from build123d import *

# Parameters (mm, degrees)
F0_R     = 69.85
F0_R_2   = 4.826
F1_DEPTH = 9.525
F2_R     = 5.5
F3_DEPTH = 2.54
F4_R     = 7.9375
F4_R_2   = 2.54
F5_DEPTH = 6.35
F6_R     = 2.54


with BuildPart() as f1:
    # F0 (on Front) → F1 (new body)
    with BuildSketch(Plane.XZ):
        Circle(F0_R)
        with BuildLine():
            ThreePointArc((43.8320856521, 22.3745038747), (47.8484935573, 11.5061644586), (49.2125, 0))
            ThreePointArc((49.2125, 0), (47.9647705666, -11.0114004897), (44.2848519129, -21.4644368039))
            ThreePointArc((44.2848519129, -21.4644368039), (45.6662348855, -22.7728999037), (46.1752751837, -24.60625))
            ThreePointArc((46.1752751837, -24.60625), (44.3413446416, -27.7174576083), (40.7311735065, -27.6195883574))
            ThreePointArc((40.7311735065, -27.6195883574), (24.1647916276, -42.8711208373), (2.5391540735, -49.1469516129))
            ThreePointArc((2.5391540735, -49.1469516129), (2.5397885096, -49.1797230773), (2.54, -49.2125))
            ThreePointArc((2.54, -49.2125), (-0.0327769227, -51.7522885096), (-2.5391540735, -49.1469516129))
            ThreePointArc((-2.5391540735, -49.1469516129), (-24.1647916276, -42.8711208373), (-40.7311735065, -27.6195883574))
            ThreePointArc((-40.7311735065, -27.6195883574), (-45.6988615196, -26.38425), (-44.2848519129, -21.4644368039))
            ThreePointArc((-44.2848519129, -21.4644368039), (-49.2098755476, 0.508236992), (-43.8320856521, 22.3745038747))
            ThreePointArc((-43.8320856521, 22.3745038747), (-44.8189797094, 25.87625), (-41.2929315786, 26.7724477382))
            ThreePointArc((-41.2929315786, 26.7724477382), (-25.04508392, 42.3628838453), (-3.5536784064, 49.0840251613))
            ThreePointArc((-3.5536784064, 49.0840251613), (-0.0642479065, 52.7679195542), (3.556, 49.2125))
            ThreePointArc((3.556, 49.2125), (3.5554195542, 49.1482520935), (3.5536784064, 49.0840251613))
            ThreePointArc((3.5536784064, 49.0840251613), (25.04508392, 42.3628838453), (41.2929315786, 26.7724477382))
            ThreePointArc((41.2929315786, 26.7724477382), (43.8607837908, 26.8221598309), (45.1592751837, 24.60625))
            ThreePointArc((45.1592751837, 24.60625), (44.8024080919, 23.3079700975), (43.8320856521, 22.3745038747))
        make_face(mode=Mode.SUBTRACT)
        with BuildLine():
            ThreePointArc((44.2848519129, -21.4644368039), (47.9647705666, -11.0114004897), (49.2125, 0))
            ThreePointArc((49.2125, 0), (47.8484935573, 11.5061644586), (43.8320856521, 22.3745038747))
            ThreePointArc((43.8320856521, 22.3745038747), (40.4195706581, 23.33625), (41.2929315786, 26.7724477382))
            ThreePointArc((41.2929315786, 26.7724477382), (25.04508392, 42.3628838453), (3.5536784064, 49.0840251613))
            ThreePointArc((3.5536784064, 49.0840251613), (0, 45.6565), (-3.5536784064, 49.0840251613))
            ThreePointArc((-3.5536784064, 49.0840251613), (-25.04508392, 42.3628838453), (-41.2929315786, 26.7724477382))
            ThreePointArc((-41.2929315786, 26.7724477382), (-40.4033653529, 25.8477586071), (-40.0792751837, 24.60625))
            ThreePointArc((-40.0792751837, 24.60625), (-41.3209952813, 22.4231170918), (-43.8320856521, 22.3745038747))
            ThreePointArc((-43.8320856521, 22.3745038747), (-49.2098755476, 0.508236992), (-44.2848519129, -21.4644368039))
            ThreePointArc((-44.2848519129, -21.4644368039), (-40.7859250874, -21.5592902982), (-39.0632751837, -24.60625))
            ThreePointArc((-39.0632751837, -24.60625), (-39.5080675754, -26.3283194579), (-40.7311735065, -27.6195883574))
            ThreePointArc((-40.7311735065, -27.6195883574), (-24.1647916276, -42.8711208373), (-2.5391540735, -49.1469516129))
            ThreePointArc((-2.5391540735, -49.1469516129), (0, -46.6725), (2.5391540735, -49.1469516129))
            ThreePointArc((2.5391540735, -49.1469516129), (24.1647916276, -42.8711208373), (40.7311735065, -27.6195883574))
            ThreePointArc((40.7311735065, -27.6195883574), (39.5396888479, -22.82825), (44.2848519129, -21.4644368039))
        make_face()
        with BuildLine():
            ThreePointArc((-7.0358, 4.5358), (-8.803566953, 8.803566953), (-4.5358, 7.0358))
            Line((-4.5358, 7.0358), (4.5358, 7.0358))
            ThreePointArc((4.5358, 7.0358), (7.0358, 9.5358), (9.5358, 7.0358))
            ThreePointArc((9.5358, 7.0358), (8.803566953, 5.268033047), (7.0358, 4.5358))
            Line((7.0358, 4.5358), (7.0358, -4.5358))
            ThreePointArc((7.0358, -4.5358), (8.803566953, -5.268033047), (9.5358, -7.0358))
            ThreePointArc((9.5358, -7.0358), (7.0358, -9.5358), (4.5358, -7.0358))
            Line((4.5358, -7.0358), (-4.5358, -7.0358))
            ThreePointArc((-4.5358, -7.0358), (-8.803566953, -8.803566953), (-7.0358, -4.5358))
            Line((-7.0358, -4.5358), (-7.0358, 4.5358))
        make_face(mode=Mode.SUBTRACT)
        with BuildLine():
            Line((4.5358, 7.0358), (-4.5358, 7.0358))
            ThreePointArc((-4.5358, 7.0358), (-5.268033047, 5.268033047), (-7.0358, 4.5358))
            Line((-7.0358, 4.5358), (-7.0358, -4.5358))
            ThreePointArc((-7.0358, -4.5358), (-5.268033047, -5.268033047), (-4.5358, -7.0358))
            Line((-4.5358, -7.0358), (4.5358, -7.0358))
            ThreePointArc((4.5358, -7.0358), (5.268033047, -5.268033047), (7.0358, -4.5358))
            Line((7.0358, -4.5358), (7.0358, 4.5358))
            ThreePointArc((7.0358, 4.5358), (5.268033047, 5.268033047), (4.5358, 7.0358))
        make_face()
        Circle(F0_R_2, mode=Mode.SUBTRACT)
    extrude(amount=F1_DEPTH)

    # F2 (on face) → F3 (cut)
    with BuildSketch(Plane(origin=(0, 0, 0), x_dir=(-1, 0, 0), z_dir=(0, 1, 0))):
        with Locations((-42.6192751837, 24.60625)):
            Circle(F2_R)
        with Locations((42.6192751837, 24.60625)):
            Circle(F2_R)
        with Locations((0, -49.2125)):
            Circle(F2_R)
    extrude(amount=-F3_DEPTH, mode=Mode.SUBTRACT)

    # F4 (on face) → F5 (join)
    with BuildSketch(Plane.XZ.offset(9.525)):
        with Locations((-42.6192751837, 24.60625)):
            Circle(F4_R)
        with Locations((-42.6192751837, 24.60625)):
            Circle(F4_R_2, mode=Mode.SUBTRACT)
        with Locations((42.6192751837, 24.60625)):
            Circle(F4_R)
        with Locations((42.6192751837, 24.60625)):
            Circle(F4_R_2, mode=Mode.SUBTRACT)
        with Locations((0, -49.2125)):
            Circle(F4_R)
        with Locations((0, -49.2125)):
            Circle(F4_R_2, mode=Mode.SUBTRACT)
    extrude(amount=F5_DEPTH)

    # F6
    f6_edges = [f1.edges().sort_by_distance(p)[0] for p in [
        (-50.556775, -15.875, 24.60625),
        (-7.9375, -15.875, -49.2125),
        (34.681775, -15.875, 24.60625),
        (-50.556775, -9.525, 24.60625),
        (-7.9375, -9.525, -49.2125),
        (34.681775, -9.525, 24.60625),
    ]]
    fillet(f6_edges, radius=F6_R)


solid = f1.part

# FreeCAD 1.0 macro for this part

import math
import FreeCAD as App
import Part
import Sketcher

V = App.Vector
Q = App.Units.Quantity


def edges_at(feature, points):
    """Names of the edges that pass closest to the given points."""
    edges = feature.Shape.Edges
    near = lambda p: min(range(len(edges)), key=lambda i: edges[i].distToShape(Part.Vertex(*p))[0])
    return sorted({f"Edge{near(p) + 1}" for p in points})

doc = App.newDocument("Part")
params = doc.addObject("Spreadsheet::Sheet", "Params")
for row, (alias, value) in enumerate([
    ("sketch1_diameter", "5.5 in"),
    ("sketch1_radius", "0.1 in"),
    ("sketch1_diameter2", "0.38 in"),
    ("sketch1_radius2", "0.14 in"),
    ("pad1_length", "0.375 in"),
    ("pocket1_length", "0.1 in"),
    ("sketch3_diameter", "0.2 in"),
    ("sketch3_diameter2", "0.625 in"),
    ("pad2_length", "0.25 in"),
    ("fillet_radius", "0.1 in"),
], start=1):
    params.set(f"A{row}", alias)
    params.set(f"B{row}", "=" + value)
    params.setAlias(f"B{row}", alias)

body = doc.addObject("PartDesign::Body", "Body")

sketch1 = body.newObject("Sketcher::SketchObject", "Sketch")
sketch1.AttachmentSupport = (doc.getObject("XZ_Plane"), [""])
sketch1.MapMode = "FlatFace"
sketch1.addGeometry([
    Part.Circle(V(0, 0, 0), V(0, 0, 1), 69.85),
    Part.ArcOfCircle(Part.Circle(V(-42.619275, -24.60625, 0), V(0, 0, 1), 3.556), math.radians(117.929508), math.radians(302.070492)),
    Part.ArcOfCircle(Part.Circle(V(-42.619275, -24.60625, 0), V(0, 0, 1), 3.556), math.radians(0), math.radians(117.929508)),
    Part.ArcOfCircle(Part.Circle(V(-42.619275, -24.60625, 0), V(0, 0, 1), 3.556), math.radians(-57.929508), math.radians(0)),
    Part.ArcOfCircle(Part.Circle(V(-7.0358, -7.0358, 0), V(0, 0, 1), 2.5), math.radians(90), math.radians(360)),
    Part.ArcOfCircle(Part.Circle(V(-7.0358, -7.0358, 0), V(0, 0, 1), 2.5), math.radians(0), math.radians(90)),
    Part.ArcOfCircle(Part.Circle(V(0, -49.2125, 0), V(0, 0, 1), 2.54), math.radians(178.521235), math.radians(360)),
    Part.ArcOfCircle(Part.Circle(V(0, -49.2125, 0), V(0, 0, 1), 2.54), math.radians(1.478765), math.radians(178.521235)),
    Part.ArcOfCircle(Part.Circle(V(0, -49.2125, 0), V(0, 0, 1), 2.54), math.radians(0), math.radians(1.478765)),
    Part.ArcOfCircle(Part.Circle(V(7.0358, -7.0358, 0), V(0, 0, 1), 2.5), math.radians(180), math.radians(360)),
    Part.ArcOfCircle(Part.Circle(V(7.0358, -7.0358, 0), V(0, 0, 1), 2.5), math.radians(90), math.radians(180)),
    Part.ArcOfCircle(Part.Circle(V(7.0358, -7.0358, 0), V(0, 0, 1), 2.5), math.radians(0), math.radians(90)),
    Part.Circle(V(0, 0, 0), V(0, 0, 1), 4.826),
    Part.ArcOfCircle(Part.Circle(V(42.619275, -24.60625, 0), V(0, 0, 1), 3.556), math.radians(-122.070492), math.radians(0)),
    Part.ArcOfCircle(Part.Circle(V(42.619275, -24.60625, 0), V(0, 0, 1), 3.556), math.radians(62.070492), math.radians(237.929508)),
    Part.ArcOfCircle(Part.Circle(V(42.619275, -24.60625, 0), V(0, 0, 1), 3.556), math.radians(0), math.radians(62.070492)),
    Part.ArcOfCircle(Part.Circle(V(-42.619275, 24.60625, 0), V(0, 0, 1), 2.54), math.radians(58.521235), math.radians(241.478765)),
    Part.ArcOfCircle(Part.Circle(V(-42.619275, 24.60625, 0), V(0, 0, 1), 2.54), math.radians(0), math.radians(58.521235)),
    Part.ArcOfCircle(Part.Circle(V(-42.619275, 24.60625, 0), V(0, 0, 1), 2.54), math.radians(-118.521235), math.radians(0)),
    Part.ArcOfCircle(Part.Circle(V(-7.0358, 7.0358, 0), V(0, 0, 1), 2.5), math.radians(0), math.radians(270)),
    Part.ArcOfCircle(Part.Circle(V(-7.0358, 7.0358, 0), V(0, 0, 1), 2.5), math.radians(-90), math.radians(0)),
    Part.ArcOfCircle(Part.Circle(V(7.0358, 7.0358, 0), V(0, 0, 1), 2.5), math.radians(-90), math.radians(0)),
    Part.ArcOfCircle(Part.Circle(V(7.0358, 7.0358, 0), V(0, 0, 1), 2.5), math.radians(180), math.radians(270)),
    Part.ArcOfCircle(Part.Circle(V(7.0358, 7.0358, 0), V(0, 0, 1), 2.5), math.radians(0), math.radians(180)),
    Part.ArcOfCircle(Part.Circle(V(42.619275, 24.60625, 0), V(0, 0, 1), 2.54), math.radians(-61.478765), math.radians(0)),
    Part.ArcOfCircle(Part.Circle(V(42.619275, 24.60625, 0), V(0, 0, 1), 2.54), math.radians(121.478765), math.radians(298.521235)),
    Part.ArcOfCircle(Part.Circle(V(42.619275, 24.60625, 0), V(0, 0, 1), 2.54), math.radians(0), math.radians(121.478765)),
    Part.ArcOfCircle(Part.Circle(V(0, 49.2125, 0), V(0, 0, 1), 3.556), math.radians(-2.070492), math.radians(0)),
    Part.ArcOfCircle(Part.Circle(V(0, 49.2125, 0), V(0, 0, 1), 3.556), math.radians(-177.929508), math.radians(-2.070492)),
    Part.ArcOfCircle(Part.Circle(V(0, 49.2125, 0), V(0, 0, 1), 3.556), math.radians(0), math.radians(182.070492)),
], False)
sketch1.addConstraint([
    Sketcher.Constraint("Tangent", 1, 1, 2, 2),
    Sketcher.Constraint("Tangent", 2, 1, 3, 2),
    Sketcher.Constraint("Tangent", 3, 1, 1, 2),
    Sketcher.Constraint("Tangent", 4, 1, 5, 2),
    Sketcher.Constraint("Coincident", 5, 1, 4, 2),
    Sketcher.Constraint("Tangent", 6, 1, 7, 2),
    Sketcher.Constraint("Tangent", 7, 1, 8, 2),
    Sketcher.Constraint("Tangent", 8, 1, 6, 2),
    Sketcher.Constraint("Tangent", 9, 1, 10, 2),
    Sketcher.Constraint("Tangent", 10, 1, 11, 2),
    Sketcher.Constraint("Tangent", 11, 1, 9, 2),
    Sketcher.Constraint("Tangent", 13, 1, 14, 2),
    Sketcher.Constraint("Tangent", 14, 1, 15, 2),
    Sketcher.Constraint("Tangent", 15, 1, 13, 2),
    Sketcher.Constraint("Tangent", 16, 1, 17, 2),
    Sketcher.Constraint("Tangent", 17, 1, 18, 2),
    Sketcher.Constraint("Tangent", 18, 1, 16, 2),
    Sketcher.Constraint("Tangent", 19, 1, 20, 2),
    Sketcher.Constraint("Coincident", 20, 1, 19, 2),
    Sketcher.Constraint("Tangent", 21, 1, 22, 2),
    Sketcher.Constraint("Tangent", 22, 1, 23, 2),
    Sketcher.Constraint("Tangent", 23, 1, 21, 2),
    Sketcher.Constraint("Tangent", 24, 1, 25, 2),
    Sketcher.Constraint("Tangent", 25, 1, 26, 2),
    Sketcher.Constraint("Tangent", 26, 1, 24, 2),
    Sketcher.Constraint("Tangent", 27, 1, 28, 2),
    Sketcher.Constraint("Tangent", 28, 1, 29, 2),
    Sketcher.Constraint("Tangent", 29, 1, 27, 2),
    Sketcher.Constraint("Coincident", 0, 3, -1, 1),
    Sketcher.Constraint("Coincident", 12, 3, -1, 1),
    Sketcher.Constraint("Equal", 5, 9),
    Sketcher.Constraint("Equal", 3, 13),
    Sketcher.Constraint("Equal", 8, 16),
    Sketcher.Constraint("Equal", 11, 19),
    Sketcher.Constraint("Equal", 20, 21),
    Sketcher.Constraint("Equal", 18, 24),
    Sketcher.Constraint("Equal", 15, 27),
    Sketcher.Constraint("Symmetric", 13, 3, 16, 3, -1, 1),
    Sketcher.Constraint("Symmetric", 9, 3, 19, 3, -1, 1),
    Sketcher.Constraint("Symmetric", 4, 3, 21, 3, -1, 1),
    Sketcher.Constraint("Symmetric", 1, 3, 24, 3, -1, 1),
    Sketcher.Constraint("Symmetric", 6, 3, 27, 3, -1, 1),
    Sketcher.Constraint("Symmetric", 4, 3, 9, 3, -2),
    Sketcher.Constraint("Symmetric", 1, 3, 13, 3, -2),
    Sketcher.Constraint("Symmetric", 6, 1, 7, 1, -2),
    Sketcher.Constraint("Horizontal", 15, 3, 2, 1),
    Sketcher.Constraint("Horizontal", 11, 3, 5, 1),
    Sketcher.Constraint("Horizontal", 7, 3, 8, 1),
    Sketcher.Constraint("Horizontal", 5, 1, 9, 1),
    Sketcher.Constraint("Horizontal", 9, 1, 11, 1),
    Sketcher.Constraint("Horizontal", 3, 1, 13, 1),
    Sketcher.Constraint("Horizontal", 1, 1, 14, 1),
    Sketcher.Constraint("Horizontal", 2, 1, 15, 1),
    Sketcher.Constraint("Horizontal", 26, 3, 17, 1),
    Sketcher.Constraint("Horizontal", 23, 3, 19, 1),
    Sketcher.Constraint("Horizontal", 19, 1, 22, 1),
    Sketcher.Constraint("Horizontal", 22, 1, 23, 1),
    Sketcher.Constraint("Horizontal", 18, 1, 24, 1),
    Sketcher.Constraint("Horizontal", 16, 1, 25, 1),
    Sketcher.Constraint("Horizontal", 17, 1, 26, 1),
    Sketcher.Constraint("Horizontal", 27, 1, 28, 1),
    Sketcher.Constraint("Horizontal", 28, 3, 29, 1),
    Sketcher.Constraint("Vertical", 20, 3, 4, 1),
    Sketcher.Constraint("Vertical", 23, 3, 10, 1),
    Sketcher.Constraint("Vertical", 4, 1, 20, 1),
    Sketcher.Constraint("Vertical", 10, 1, 21, 1),
    Sketcher.Constraint("Diameter", 0, Q("5.5 in")),
    Sketcher.Constraint("Radius", 6, Q("0.1 in")),
    Sketcher.Constraint("Diameter", 12, Q("0.38 in")),
    Sketcher.Constraint("Radius", 1, Q("0.14 in")),
    Sketcher.Constraint("Radius", 4, 2.5),
    Sketcher.Constraint("DistanceY", 1, 3, -1, 1, Q("0.96875 in")),
    Sketcher.Constraint("DistanceX", 4, 3, -1, 1, Q("0.277 in")),
    Sketcher.Constraint("DistanceY", 4, 3, -1, 1, Q("0.277 in")),
    Sketcher.Constraint("DistanceY", 6, 3, -1, 1, Q("1.9375 in")),
    Sketcher.Constraint("DistanceX", 3, 1, 2, 1, 1.667898),
    Sketcher.Constraint("DistanceX", 1, 1, -1, 1, 44.284852),
    Sketcher.Constraint("DistanceY", 6, 1, -1, 1, 49.146952),
    Sketcher.Constraint("DistanceX", 16, 1, -1, 1, 41.292932),
    Sketcher.Constraint("DistanceX", -1, 1, 27, 1, 3.553678),
    Sketcher.Constraint("DistanceX", 1, 1, 3, 1, 3.553678),
    Sketcher.Constraint("DistanceX", 18, 1, 16, 3, 1.21281),
])
sketch1.setExpression("Constraints[66]", "Params.sketch1_diameter")
sketch1.setExpression("Constraints[67]", "Params.sketch1_radius")
sketch1.setExpression("Constraints[68]", "Params.sketch1_diameter2")
sketch1.setExpression("Constraints[69]", "Params.sketch1_radius2")
pad1 = body.newObject("PartDesign::Pad", "Pad")
pad1.Profile = sketch1
pad1.setExpression("Length", "Params.pad1_length")

sketch2 = body.newObject("Sketcher::SketchObject", "Sketch001")
sketch2.AttachmentSupport = (doc.getObject("XZ_Plane"), [""])
sketch2.MapMode = "FlatFace"
sketch2.addGeometry([
    Part.Circle(V(42.619275, 24.60625, 0), V(0, 0, 1), 5.5),
    Part.Circle(V(-42.619275, 24.60625, 0), V(0, 0, 1), 5.5),
    Part.Circle(V(0, -49.2125, 0), V(0, 0, 1), 5.5),
], False)
sketch2.addConstraint([
    Sketcher.Constraint("Equal", 0, 1),
    Sketcher.Constraint("Equal", 1, 2),
    Sketcher.Constraint("Symmetric", 0, 3, 1, 3, -2),
    Sketcher.Constraint("PointOnObject", 2, 3, -2),
    Sketcher.Constraint("Diameter", 0, 11.0),
    Sketcher.Constraint("DistanceY", -1, 1, 0, 3, Q("0.96875 in")),
    Sketcher.Constraint("DistanceY", 2, 3, -1, 1, Q("1.9375 in")),
    Sketcher.Constraint("DistanceX", 1, 3, 0, 3, 85.23855),
])
pocket1 = body.newObject("PartDesign::Pocket", "Pocket")
pocket1.Profile = sketch2
pocket1.setExpression("Length", "Params.pocket1_length")
pocket1.Reversed = True

sketch3 = body.newObject("Sketcher::SketchObject", "Sketch002")
sketch3.AttachmentSupport = (doc.getObject("XZ_Plane"), [""])
sketch3.MapMode = "FlatFace"
sketch3.AttachmentOffset = App.Placement(V(0, 0, 0.375 * 25.4), App.Rotation())
sketch3.addGeometry([
    Part.Circle(V(-42.619275, 24.60625, 0), V(0, 0, 1), 7.9375),
    Part.Circle(V(-42.619275, 24.60625, 0), V(0, 0, 1), 2.54),
    Part.Circle(V(42.619275, 24.60625, 0), V(0, 0, 1), 7.9375),
    Part.Circle(V(42.619275, 24.60625, 0), V(0, 0, 1), 2.54),
    Part.Circle(V(0, -49.2125, 0), V(0, 0, 1), 7.9375),
    Part.Circle(V(0, -49.2125, 0), V(0, 0, 1), 2.54),
], False)
sketch3.addConstraint([
    Sketcher.Constraint("Coincident", 1, 3, 0, 3),
    Sketcher.Constraint("Coincident", 3, 3, 2, 3),
    Sketcher.Constraint("Coincident", 5, 3, 4, 3),
    Sketcher.Constraint("Equal", 0, 2),
    Sketcher.Constraint("Equal", 1, 3),
    Sketcher.Constraint("Equal", 2, 4),
    Sketcher.Constraint("Equal", 3, 5),
    Sketcher.Constraint("Symmetric", 0, 3, 2, 3, -2),
    Sketcher.Constraint("PointOnObject", 4, 3, -2),
    Sketcher.Constraint("Diameter", 1, Q("0.2 in")),
    Sketcher.Constraint("Diameter", 0, Q("0.625 in")),
    Sketcher.Constraint("DistanceY", -1, 1, 0, 3, Q("0.96875 in")),
    Sketcher.Constraint("DistanceY", 4, 3, -1, 1, Q("1.9375 in")),
    Sketcher.Constraint("DistanceX", 0, 3, 2, 3, 85.23855),
])
sketch3.setExpression("Constraints[9]", "Params.sketch3_diameter")
sketch3.setExpression("Constraints[10]", "Params.sketch3_diameter2")
pad2 = body.newObject("PartDesign::Pad", "Pad001")
pad2.Profile = sketch3
pad2.setExpression("Length", "Params.pad2_length")
doc.recompute()

fillet = body.newObject("PartDesign::Fillet", "Fillet")
fillet.Base = (pad2, edges_at(pad2, [
    (-50.557, -15.875, 24.606),
    (-7.938, -15.875, -49.212),
    (34.682, -15.875, 24.606),
    (-50.557, -9.525, 24.606),
    (-7.938, -9.525, -49.212),
    (34.682, -9.525, 24.606),
]))
fillet.setExpression("Radius", "Params.fillet_radius")

doc.recompute()
